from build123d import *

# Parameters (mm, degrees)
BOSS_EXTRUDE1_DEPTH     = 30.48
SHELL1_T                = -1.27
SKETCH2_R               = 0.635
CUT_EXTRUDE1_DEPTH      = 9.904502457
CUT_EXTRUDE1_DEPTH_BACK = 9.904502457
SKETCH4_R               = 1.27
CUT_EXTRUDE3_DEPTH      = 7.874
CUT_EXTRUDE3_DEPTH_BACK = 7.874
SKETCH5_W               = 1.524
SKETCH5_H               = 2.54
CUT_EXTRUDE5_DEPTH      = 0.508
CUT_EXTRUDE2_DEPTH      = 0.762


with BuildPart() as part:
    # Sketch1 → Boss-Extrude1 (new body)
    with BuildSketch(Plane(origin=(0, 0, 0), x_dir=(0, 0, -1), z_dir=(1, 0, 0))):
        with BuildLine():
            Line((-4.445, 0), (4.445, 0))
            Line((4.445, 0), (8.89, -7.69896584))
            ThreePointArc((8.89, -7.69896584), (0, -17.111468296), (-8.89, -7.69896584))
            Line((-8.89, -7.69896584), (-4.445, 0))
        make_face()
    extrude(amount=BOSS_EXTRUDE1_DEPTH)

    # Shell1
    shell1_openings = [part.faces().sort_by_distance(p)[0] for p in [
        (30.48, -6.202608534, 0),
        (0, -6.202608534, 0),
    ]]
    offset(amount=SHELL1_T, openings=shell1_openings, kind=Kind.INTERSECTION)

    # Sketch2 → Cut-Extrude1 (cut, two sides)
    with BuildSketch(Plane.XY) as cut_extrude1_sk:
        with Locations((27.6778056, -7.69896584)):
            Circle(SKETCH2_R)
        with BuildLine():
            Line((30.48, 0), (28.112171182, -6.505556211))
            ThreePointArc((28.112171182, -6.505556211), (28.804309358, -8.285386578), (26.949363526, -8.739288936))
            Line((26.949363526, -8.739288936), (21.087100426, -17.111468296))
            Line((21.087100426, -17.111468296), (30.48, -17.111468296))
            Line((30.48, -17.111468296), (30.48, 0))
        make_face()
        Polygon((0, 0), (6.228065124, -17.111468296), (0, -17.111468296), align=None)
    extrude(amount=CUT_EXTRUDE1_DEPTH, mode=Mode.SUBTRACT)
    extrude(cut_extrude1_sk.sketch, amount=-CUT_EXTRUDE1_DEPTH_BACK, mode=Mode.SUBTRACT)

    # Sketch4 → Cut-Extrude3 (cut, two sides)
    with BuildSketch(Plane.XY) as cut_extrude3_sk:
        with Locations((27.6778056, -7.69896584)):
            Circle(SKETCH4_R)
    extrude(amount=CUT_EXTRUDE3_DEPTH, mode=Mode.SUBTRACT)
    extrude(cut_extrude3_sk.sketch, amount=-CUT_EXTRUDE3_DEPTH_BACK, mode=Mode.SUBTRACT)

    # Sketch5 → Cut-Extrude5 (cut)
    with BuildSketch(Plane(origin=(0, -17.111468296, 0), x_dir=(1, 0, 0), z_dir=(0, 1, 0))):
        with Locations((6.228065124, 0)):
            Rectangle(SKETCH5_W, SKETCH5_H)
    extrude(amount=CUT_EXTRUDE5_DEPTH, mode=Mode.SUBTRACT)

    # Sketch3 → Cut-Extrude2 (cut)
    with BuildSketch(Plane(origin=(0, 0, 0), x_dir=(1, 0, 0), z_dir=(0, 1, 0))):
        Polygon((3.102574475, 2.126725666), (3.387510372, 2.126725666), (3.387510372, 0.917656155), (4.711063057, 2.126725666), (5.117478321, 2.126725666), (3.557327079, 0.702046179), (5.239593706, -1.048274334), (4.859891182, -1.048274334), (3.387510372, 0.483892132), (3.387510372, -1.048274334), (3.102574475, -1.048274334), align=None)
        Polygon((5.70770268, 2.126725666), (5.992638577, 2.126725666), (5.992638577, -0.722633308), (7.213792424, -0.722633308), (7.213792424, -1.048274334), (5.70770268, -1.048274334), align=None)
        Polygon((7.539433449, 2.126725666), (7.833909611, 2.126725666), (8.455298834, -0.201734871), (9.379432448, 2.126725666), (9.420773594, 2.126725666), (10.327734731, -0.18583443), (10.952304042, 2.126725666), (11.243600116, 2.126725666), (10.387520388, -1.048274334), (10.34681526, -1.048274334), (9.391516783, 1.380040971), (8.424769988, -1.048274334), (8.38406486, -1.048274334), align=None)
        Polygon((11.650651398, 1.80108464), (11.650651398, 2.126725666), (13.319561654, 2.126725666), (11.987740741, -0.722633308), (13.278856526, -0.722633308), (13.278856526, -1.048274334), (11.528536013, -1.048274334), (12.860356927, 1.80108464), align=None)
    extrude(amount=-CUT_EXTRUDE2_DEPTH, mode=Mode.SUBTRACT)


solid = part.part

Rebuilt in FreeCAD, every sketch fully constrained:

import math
import FreeCAD as App
import Part
import Sketcher

V = App.Vector
Q = App.Units.Quantity


def faces_at(feature, points):
    """Names of the faces that lie closest to the given points."""
    faces = feature.Shape.Faces
    near = lambda p: min(range(len(faces)), key=lambda i: faces[i].distToShape(Part.Vertex(*p))[0])
    return sorted({f"Face{near(p) + 1}" for p in points})

doc = App.newDocument("Part")
body = doc.addObject("PartDesign::Body", "Body")

# Sketch on YZ plane
sketch1 = doc.addObject("Sketcher::SketchObject", "Sketch")
body.addObject(sketch1)
sketch1.AttachmentSupport = (doc.YZ_Plane, [""])
sketch1.MapMode = "FlatFace"
sketch1.addGeometry([
    Part.LineSegment(V(0, -4, 0), V(0, 4, 0)),
    Part.LineSegment(V(0, 4, 0), V(-8, 9, 0)),
    Part.ArcOfCircle(Part.Circle(V(-8, 0, 0), V(0, 0, 1), 9), math.radians(87), math.radians(273)),
    Part.LineSegment(V(-8, -9, 0), V(0, -4, 0)),
], False)
sketch1.addConstraint([
    Sketcher.Constraint("Coincident", 0, 2, 1, 1),
    Sketcher.Constraint("Coincident", 1, 2, 2, 1),
    Sketcher.Constraint("Coincident", 2, 2, 3, 1),
    Sketcher.Constraint("Coincident", 3, 2, 0, 1),
    Sketcher.Constraint("Vertical", 0),
    Sketcher.Constraint("Symmetric", 0, 2, 3, 2, -1, 1),
    Sketcher.Constraint("Symmetric", 1, 2, 2, 2, -1),
    Sketcher.Constraint("Angle", 1, Q("150 deg")),
    Sketcher.Constraint("DistanceY", 0, 1, 0, 2, Q("0.35 in")),
    Sketcher.Constraint("DistanceY", 2, 2, 1, 2, Q("0.7 in")),
    Sketcher.Constraint("DistanceX", 2, 3, 1, 2, Q("0.02 in")),
])
pad1 = doc.addObject("PartDesign::Pad", "Pad")
body.addObject(pad1)
pad1.Profile = sketch1
pad1.Length = Q("1.2 in")
doc.recompute()

thickness = doc.addObject("PartDesign::Thickness", "Thickness")
body.addObject(thickness)
thickness.Base = (pad1, faces_at(pad1, [(30.48, -8.556, 0), (0, -8.556, 0)]))
thickness.Value = Q("0.05 in")
thickness.Reversed = True
thickness.Join = "Intersection"

# Sketch on XY plane
sketch2 = doc.addObject("Sketcher::SketchObject", "Sketch001")
body.addObject(sketch2)
sketch2.AttachmentSupport = (doc.XY_Plane, [""])
sketch2.MapMode = "FlatFace"
sketch2.addGeometry([
    Part.Circle(V(27.7, -7.7, 0), V(0, 0, 1), 0.6),  # 0
    Part.LineSegment(V(30.5, 0, 0), V(28.1, -6.5, 0)),  # 1
    Part.ArcOfCircle(Part.Circle(V(27.7, -7.7, 0), V(0, 0, 1), 1.3), math.radians(-125), math.radians(70)),  # 2
    Part.LineSegment(V(26.9, -8.7, 0), V(21.1, -17.1, 0)),  # 3
    Part.LineSegment(V(21.1, -17.1, 0), V(30.5, -17.1, 0)),  # 4
    Part.LineSegment(V(30.5, -17.1, 0), V(30.5, 0, 0)),  # 5
    Part.LineSegment(V(6.2, -17.1, 0), V(0, 0, 0)),  # 6
    Part.LineSegment(V(0, 0, 0), V(0, -17.1, 0)),  # 7
    Part.LineSegment(V(0, -17.1, 0), V(6.2, -17.1, 0)),  # 8
], False)
sketch2.addConstraint([
    Sketcher.Constraint("Coincident", 1, 2, 2, 2),
    Sketcher.Constraint("Coincident", 2, 1, 3, 1),
    Sketcher.Constraint("Coincident", 3, 2, 4, 1),
    Sketcher.Constraint("Coincident", 4, 2, 5, 1),
    Sketcher.Constraint("Coincident", 5, 2, 1, 1),
    Sketcher.Constraint("Coincident", 6, 2, 7, 1),
    Sketcher.Constraint("Coincident", 7, 2, 8, 1),
    Sketcher.Constraint("Coincident", 8, 2, 6, 1),
    Sketcher.Constraint("Horizontal", 4),
    Sketcher.Constraint("Vertical", 5),
    Sketcher.Constraint("Vertical", 7),
    Sketcher.Constraint("Horizontal", 8),
    Sketcher.Constraint("Coincident", 6, 2, -1, 1),
    Sketcher.Constraint("Coincident", 2, 3, 0, 3),
    Sketcher.Constraint("PointOnObject", 5, 2, -1),
    Sketcher.Constraint("Horizontal", 4, 2, 7, 2),
    Sketcher.Constraint("Diameter", 0, Q("0.05 in")),
    Sketcher.Constraint("Radius", 2, Q("0.05 in")),
    Sketcher.Constraint("Angle", 1, Q("-110 deg")),
    Sketcher.Constraint("Angle", 3, Q("-125 deg")),
    Sketcher.Constraint("Angle", 6, Q("110 deg")),
    Sketcher.Constraint("DistanceX", -1, 1, 4, 2, Q("1.2 in")),
    Sketcher.Constraint("DistanceX", 4, 1, 4, 2, Q("9.3929 mm")),
    Sketcher.Constraint("DistanceY", 5, 1, 5, 2, Q("17.111468 mm")),
    Sketcher.Constraint("DistanceX", 8, 2, 2, 1, Q("20.721298 mm")),
    Sketcher.Constraint("Distance", 1, Q("6.923068 mm")),
])
pocket1 = doc.addObject("PartDesign::Pocket", "Pocket")
body.addObject(pocket1)
pocket1.Profile = sketch2
pocket1.Type = "ThroughAll"
pocket1.Midplane = True

# Sketch on XY plane
sketch3 = doc.addObject("Sketcher::SketchObject", "Sketch002")
body.addObject(sketch3)
sketch3.AttachmentSupport = (doc.XY_Plane, [""])
sketch3.MapMode = "FlatFace"
sketch3.addGeometry(Part.Circle(V(27.7, -7.7, 0), V(0, 0, 1), 1.3), False)
sketch3.addConstraint([
    Sketcher.Constraint("Diameter", 0, Q("0.1 in")),
    Sketcher.Constraint("DistanceX", -1, 1, 0, 3, Q("27.677806 mm")),
    Sketcher.Constraint("DistanceY", 0, 3, -1, 1, Q("7.698966 mm")),
])
pocket2 = doc.addObject("PartDesign::Pocket", "Pocket001")
body.addObject(pocket2)
pocket2.Profile = sketch3
pocket2.Type = "TwoLengths"
pocket2.Length = Q("0.31 in")
pocket2.Length2 = Q("0.31 in")
pocket2.Reversed = True

# Sketch on XZ plane
sketch4 = doc.addObject("Sketcher::SketchObject", "Sketch003")
body.addObject(sketch4)
sketch4.AttachmentSupport = (doc.XZ_Plane, [""])
sketch4.MapMode = "FlatFace"
sketch4.AttachmentOffset = App.Placement(V(0, 0, 17.111468), App.Rotation())
sketch4.addGeometry([
    Part.LineSegment(V(5.5, -1.3, 0), V(5.5, 1.3, 0)),
    Part.LineSegment(V(5.5, 1.3, 0), V(7, 1.3, 0)),
    Part.LineSegment(V(7, 1.3, 0), V(7, -1.3, 0)),
    Part.LineSegment(V(7, -1.3, 0), V(5.5, -1.3, 0)),
], False)
sketch4.addConstraint([
    Sketcher.Constraint("Coincident", 0, 2, 1, 1),
    Sketcher.Constraint("Coincident", 1, 2, 2, 1),
    Sketcher.Constraint("Coincident", 2, 2, 3, 1),
    Sketcher.Constraint("Coincident", 3, 2, 0, 1),
    Sketcher.Constraint("Vertical", 0),
    Sketcher.Constraint("Horizontal", 1),
    Sketcher.Constraint("Vertical", 2),
    Sketcher.Constraint("Horizontal", 3),
    Sketcher.Constraint("DistanceY", 0, 1, 0, 2, Q("0.1 in")),
    Sketcher.Constraint("DistanceX", 1, 1, 1, 2, Q("0.06 in")),
    Sketcher.Constraint("DistanceY", -1, 1, 0, 2, Q("0.05 in")),
    Sketcher.Constraint("DistanceX", -1, 1, 0, 2, Q("5.466065 mm")),
])
pocket3 = doc.addObject("PartDesign::Pocket", "Pocket002")
body.addObject(pocket3)
pocket3.Profile = sketch4
pocket3.Length = Q("0.02 in")

# Sketch on XZ plane
sketch5 = doc.addObject("Sketcher::SketchObject", "Sketch004")
body.addObject(sketch5)
sketch5.AttachmentSupport = (doc.XZ_Plane, [""])
sketch5.MapMode = "FlatFace"
sketch5.addGeometry([
    Part.LineSegment(V(3.388, -2.127, 0), V(3.103, -2.127, 0)),  # 0
    Part.LineSegment(V(3.103, -2.127, 0), V(3.103, 1.048, 0)),  # 1
    Part.LineSegment(V(3.103, 1.048, 0), V(3.388, 1.048, 0)),  # 2
    Part.LineSegment(V(3.388, 1.048, 0), V(3.388, -0.484, 0)),  # 3
    Part.LineSegment(V(3.388, -0.484, 0), V(4.86, 1.048, 0)),  # 4
    Part.LineSegment(V(4.86, 1.048, 0), V(5.24, 1.048, 0)),  # 5
    Part.LineSegment(V(5.24, 1.048, 0), V(3.557, -0.702, 0)),  # 6
    Part.LineSegment(V(3.557, -0.702, 0), V(5.117, -2.127, 0)),  # 7
    Part.LineSegment(V(5.117, -2.127, 0), V(4.711, -2.127, 0)),  # 8
    Part.LineSegment(V(4.711, -2.127, 0), V(3.388, -0.918, 0)),  # 9
    Part.LineSegment(V(3.388, -0.918, 0), V(3.388, -2.127, 0)),  # 10
    Part.LineSegment(V(5.993, -2.127, 0), V(5.708, -2.127, 0)),  # 11
    Part.LineSegment(V(5.708, -2.127, 0), V(5.708, 1.048, 0)),  # 12
    Part.LineSegment(V(5.708, 1.048, 0), V(7.214, 1.048, 0)),  # 13
    Part.LineSegment(V(7.214, 1.048, 0), V(7.214, 0.723, 0)),  # 14
    Part.LineSegment(V(7.214, 0.723, 0), V(5.993, 0.723, 0)),  # 15
    Part.LineSegment(V(5.993, 0.723, 0), V(5.993, -2.127, 0)),  # 16
    Part.LineSegment(V(7.834, -2.127, 0), V(7.539, -2.127, 0)),  # 17
    Part.LineSegment(V(7.539, -2.127, 0), V(8.384, 1.048, 0)),  # 18
    Part.LineSegment(V(8.384, 1.048, 0), V(8.425, 1.048, 0)),  # 19
    Part.LineSegment(V(8.425, 1.048, 0), V(9.392, -1.38, 0)),  # 20
    Part.LineSegment(V(9.392, -1.38, 0), V(10.347, 1.048, 0)),  # 21
    Part.LineSegment(V(10.347, 1.048, 0), V(10.388, 1.048, 0)),  # 22
    Part.LineSegment(V(10.388, 1.048, 0), V(11.244, -2.127, 0)),  # 23
    Part.LineSegment(V(11.244, -2.127, 0), V(10.952, -2.127, 0)),  # 24
    Part.LineSegment(V(10.952, -2.127, 0), V(10.328, 0.186, 0)),  # 25
    Part.LineSegment(V(10.328, 0.186, 0), V(9.421, -2.127, 0)),  # 26
    Part.LineSegment(V(9.421, -2.127, 0), V(9.379, -2.127, 0)),  # 27
    Part.LineSegment(V(9.379, -2.127, 0), V(8.455, 0.202, 0)),  # 28
    Part.LineSegment(V(8.455, 0.202, 0), V(7.834, -2.127, 0)),  # 29
    Part.LineSegment(V(11.651, -2.127, 0), V(11.651, -1.801, 0)),  # 30
    Part.LineSegment(V(11.651, -1.801, 0), V(12.86, -1.801, 0)),  # 31
    Part.LineSegment(V(12.86, -1.801, 0), V(11.529, 1.048, 0)),  # 32
    Part.LineSegment(V(11.529, 1.048, 0), V(13.279, 1.048, 0)),  # 33
    Part.LineSegment(V(13.279, 1.048, 0), V(13.279, 0.723, 0)),  # 34
    Part.LineSegment(V(13.279, 0.723, 0), V(11.988, 0.723, 0)),  # 35
    Part.LineSegment(V(11.988, 0.723, 0), V(13.32, -2.127, 0)),  # 36
    Part.LineSegment(V(13.32, -2.127, 0), V(11.651, -2.127, 0)),  # 37
], False)
sketch5.addConstraint([
    Sketcher.Constraint("Coincident", 0, 2, 1, 1),
    Sketcher.Constraint("Coincident", 1, 2, 2, 1),
    Sketcher.Constraint("Coincident", 2, 2, 3, 1),
    Sketcher.Constraint("Coincident", 3, 2, 4, 1),
    Sketcher.Constraint("Coincident", 4, 2, 5, 1),
    Sketcher.Constraint("Coincident", 5, 2, 6, 1),
    Sketcher.Constraint("Coincident", 6, 2, 7, 1),
    Sketcher.Constraint("Coincident", 7, 2, 8, 1),
    Sketcher.Constraint("Coincident", 8, 2, 9, 1),
    Sketcher.Constraint("Coincident", 9, 2, 10, 1),
    Sketcher.Constraint("Coincident", 10, 2, 0, 1),
    Sketcher.Constraint("Coincident", 11, 2, 12, 1),
    Sketcher.Constraint("Coincident", 12, 2, 13, 1),
    Sketcher.Constraint("Coincident", 13, 2, 14, 1),
    Sketcher.Constraint("Coincident", 14, 2, 15, 1),
    Sketcher.Constraint("Coincident", 15, 2, 16, 1),
    Sketcher.Constraint("Coincident", 16, 2, 11, 1),
    Sketcher.Constraint("Coincident", 17, 2, 18, 1),
    Sketcher.Constraint("Coincident", 18, 2, 19, 1),
    Sketcher.Constraint("Coincident", 19, 2, 20, 1),
    Sketcher.Constraint("Coincident", 20, 2, 21, 1),
    Sketcher.Constraint("Coincident", 21, 2, 22, 1),
    Sketcher.Constraint("Coincident", 22, 2, 23, 1),
    Sketcher.Constraint("Coincident", 23, 2, 24, 1),
    Sketcher.Constraint("Coincident", 24, 2, 25, 1),
    Sketcher.Constraint("Coincident", 25, 2, 26, 1),
    Sketcher.Constraint("Coincident", 26, 2, 27, 1),
    Sketcher.Constraint("Coincident", 27, 2, 28, 1),
    Sketcher.Constraint("Coincident", 28, 2, 29, 1),
    Sketcher.Constraint("Coincident", 29, 2, 17, 1),
    Sketcher.Constraint("Coincident", 30, 2, 31, 1),
    Sketcher.Constraint("Coincident", 31, 2, 32, 1),
    Sketcher.Constraint("Coincident", 32, 2, 33, 1),
    Sketcher.Constraint("Coincident", 33, 2, 34, 1),
    Sketcher.Constraint("Coincident", 34, 2, 35, 1),
    Sketcher.Constraint("Coincident", 35, 2, 36, 1),
    Sketcher.Constraint("Coincident", 36, 2, 37, 1),
    Sketcher.Constraint("Coincident", 37, 2, 30, 1),
    Sketcher.Constraint("Horizontal", 0),
    Sketcher.Constraint("Vertical", 1),
    Sketcher.Constraint("Horizontal", 2),
    Sketcher.Constraint("Vertical", 3),
    Sketcher.Constraint("Horizontal", 5),
    Sketcher.Constraint("Horizontal", 8),
    Sketcher.Constraint("Vertical", 10),
    Sketcher.Constraint("Horizontal", 11),
    Sketcher.Constraint("Vertical", 12),
    Sketcher.Constraint("Horizontal", 13),
    Sketcher.Constraint("Vertical", 14),
    Sketcher.Constraint("Horizontal", 15),
    Sketcher.Constraint("Vertical", 16),
    Sketcher.Constraint("Horizontal", 17),
    Sketcher.Constraint("Horizontal", 19),
    Sketcher.Constraint("Horizontal", 22),
    Sketcher.Constraint("Horizontal", 24),
    Sketcher.Constraint("Horizontal", 27),
    Sketcher.Constraint("Vertical", 30),
    Sketcher.Constraint("Horizontal", 31),
    Sketcher.Constraint("Horizontal", 33),
    Sketcher.Constraint("Vertical", 34),
    Sketcher.Constraint("Horizontal", 35),
    Sketcher.Constraint("Horizontal", 37),
    Sketcher.Constraint("Parallel", 32, 36),
    Sketcher.Constraint("Horizontal", 2, 2, 4, 2),
    Sketcher.Constraint("Horizontal", 0, 2, 7, 2),
    Sketcher.Constraint("Horizontal", 10, 2, 11, 2),
    Sketcher.Constraint("Horizontal", 5, 2, 12, 2),
    Sketcher.Constraint("Horizontal", 16, 2, 17, 2),
    Sketcher.Constraint("Horizontal", 13, 2, 18, 2),
    Sketcher.Constraint("Horizontal", 19, 2, 21, 2),
    Sketcher.Constraint("Horizontal", 17, 2, 23, 2),
    Sketcher.Constraint("Horizontal", 24, 2, 26, 2),
    Sketcher.Constraint("Horizontal", 22, 2, 32, 2),
    Sketcher.Constraint("Horizontal", 15, 2, 34, 2),
    Sketcher.Constraint("Horizontal", 29, 2, 36, 2),
    Sketcher.Constraint("Vertical", 3, 2, 9, 2),
    Sketcher.Constraint("Equal", 2, 11),
    Sketcher.Constraint("Equal", 19, 22),
    Sketcher.Constraint("Equal", 14, 30),
    Sketcher.Constraint("DistanceY", 1, 1, 1, 2, Q("0.125 in")),
    Sketcher.Constraint("DistanceX", 13, 1, 13, 2, Q("1.50609 mm")),
    Sketcher.Constraint("DistanceX", 27, 2, 27, 1, Q("0.041341 mm")),
    Sketcher.Constraint("DistanceX", 33, 1, 33, 2, Q("1.750321 mm")),
    Sketcher.Constraint("DistanceX", 37, 2, 37, 1, Q("1.66891 mm")),
    Sketcher.Constraint("DistanceY", 10, 2, 10, 1, Q("1.20907 mm")),
    Sketcher.Constraint("DistanceY", 14, 2, 14, 1, Q("0.325641 mm")),
    Sketcher.Constraint("DistanceX", -1, 1, 23, 2, Q("11.2436 mm")),
    Sketcher.Constraint("DistanceX", -1, 1, 28, 2, Q("8.455299 mm")),
    Sketcher.Constraint("DistanceX", 5, 2, 13, 2, Q("1.974199 mm")),
    Sketcher.Constraint("DistanceX", 4, 2, 13, 2, Q("2.353901 mm")),
    Sketcher.Constraint("DistanceX", 20, 2, 21, 2, Q("0.955298 mm")),
    Sketcher.Constraint("DistanceX", 17, 2, 27, 2, Q("1.839999 mm")),
    Sketcher.Constraint("DistanceY", 28, 2, 14, 2, Q("0.520898 mm")),
    Sketcher.Constraint("DistanceX", 25, 2, 32, 2, Q("1.200801 mm")),
    Sketcher.Constraint("DistanceX", 31, 2, 33, 2, Q("0.4185 mm")),
    Sketcher.Constraint("Distance", 20, Q("2.613678 mm")),
    Sketcher.Constraint("Distance", 23, Q("3.288388 mm")),
    Sketcher.Constraint("Distance", 26, Q("2.484052 mm")),
    Sketcher.Constraint("Distance", 29, Q("2.409949 mm")),
    Sketcher.Constraint("DistanceX", 0, 2, 0, 1, Q("0.284936 mm")),
    Sketcher.Constraint("DistanceX", 8, 2, 8, 1, Q("0.406415 mm")),
    Sketcher.Constraint("DistanceX", 17, 2, 17, 1, Q("0.294476 mm")),
    Sketcher.Constraint("DistanceX", 19, 1, 19, 2, Q("0.040705 mm")),
    Sketcher.Constraint("DistanceX", 24, 2, 24, 1, Q("0.291296 mm")),
    Sketcher.Constraint("DistanceX", 31, 1, 31, 2, Q("1.209706 mm")),
    Sketcher.Constraint("DistanceY", 3, 2, 3, 1, Q("1.532166 mm")),
    Sketcher.Constraint("DistanceX", -1, 1, 2, 2, Q("3.38751 mm")),
    Sketcher.Constraint("DistanceX", -1, 1, 4, 2, Q("4.859891 mm")),
    Sketcher.Constraint("DistanceX", -1, 1, 7, 2, Q("5.117478 mm")),
    Sketcher.Constraint("DistanceX", -1, 1, 19, 2, Q("8.42477 mm")),
    Sketcher.Constraint("DistanceY", 20, 2, -1, 1, Q("1.380041 mm")),
    Sketcher.Constraint("DistanceX", -1, 1, 30, 2, Q("11.650651 mm")),
    Sketcher.Constraint("DistanceY", 0, 2, 6, 2, Q("1.424679 mm")),
    Sketcher.Constraint("DistanceX", 6, 2, 7, 2, Q("1.560151 mm")),
])
pocket4 = doc.addObject("PartDesign::Pocket", "Pocket003")
body.addObject(pocket4)
pocket4.Profile = sketch5
pocket4.Length = Q("0.03 in")
pocket4.Reversed = True

doc.recompute()
